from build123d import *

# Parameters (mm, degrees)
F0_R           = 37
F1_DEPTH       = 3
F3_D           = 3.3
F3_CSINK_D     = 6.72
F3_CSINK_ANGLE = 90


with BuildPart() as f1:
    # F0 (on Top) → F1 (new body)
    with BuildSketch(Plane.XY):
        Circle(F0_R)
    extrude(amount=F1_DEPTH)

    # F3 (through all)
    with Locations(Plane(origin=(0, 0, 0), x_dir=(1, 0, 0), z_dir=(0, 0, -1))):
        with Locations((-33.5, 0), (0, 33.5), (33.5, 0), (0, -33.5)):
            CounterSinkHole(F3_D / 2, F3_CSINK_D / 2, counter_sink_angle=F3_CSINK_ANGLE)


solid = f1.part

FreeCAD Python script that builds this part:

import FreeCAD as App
import Part
import Sketcher
from FreeCAD import Vector
Q = App.Units.Quantity

doc = App.newDocument("Part")
body = doc.addObject("PartDesign::Body", "Body")

# Sketch on XY plane
sketch1 = doc.addObject("Sketcher::SketchObject", "Sketch")
body.addObject(sketch1)
sketch1.AttachmentSupport = (doc.XY_Plane, [""])
sketch1.MapMode = "FlatFace"
sketch1.addGeometry(Part.Circle(Vector(0, 0, 0), Vector(0, 0, 1), 37), False)
sketch1.addConstraint(Sketcher.Constraint("Coincident", 0, 3, -1, 1))
sketch1.addConstraint(Sketcher.Constraint("Diameter", 0, Q("74 mm")))
pad1 = doc.addObject("PartDesign::Pad", "Pad")
body.addObject(pad1)
pad1.Profile = sketch1
pad1.Length = 3

# Sketch on XY plane
sketch2 = doc.addObject("Sketcher::SketchObject", "Sketch001")
body.addObject(sketch2)
sketch2.AttachmentSupport = (doc.XY_Plane, [""])
sketch2.MapMode = "FlatFace"
sketch2.addGeometry(Part.Circle(Vector(-33.5, 0, 0), Vector(0, 0, 1), 1.6), False)
sketch2.addGeometry(Part.Circle(Vector(0, -33.5, 0), Vector(0, 0, 1), 1.6), False)
sketch2.addGeometry(Part.Circle(Vector(33.5, 0, 0), Vector(0, 0, 1), 1.6), False)
sketch2.addGeometry(Part.Circle(Vector(0, 33.5, 0), Vector(0, 0, 1), 1.6), False)
sketch2.addConstraint(Sketcher.Constraint("Equal", 0, 1))
sketch2.addConstraint(Sketcher.Constraint("Equal", 1, 2))
sketch2.addConstraint(Sketcher.Constraint("Equal", 2, 3))
sketch2.addConstraint(Sketcher.Constraint("Symmetric", 0, 3, 2, 3, -1, 1))
sketch2.addConstraint(Sketcher.Constraint("Symmetric", 1, 3, 3, 3, -1, 1))
sketch2.addConstraint(Sketcher.Constraint("PointOnObject", 0, 3, -1))
sketch2.addConstraint(Sketcher.Constraint("PointOnObject", 1, 3, -2))
sketch2.addConstraint(Sketcher.Constraint("Diameter", 0, Q("3.3 mm")))
sketch2.addConstraint(Sketcher.Constraint("DistanceX", 0, 3, 2, 3, Q("67 mm")))
sketch2.addConstraint(Sketcher.Constraint("DistanceY", 1, 3, 3, 3, Q("67 mm")))
doc.recompute()
hole = doc.addObject("PartDesign::Hole", "Hole")
body.addObject(hole)
hole.Profile = sketch2
hole.ThreadType = "None"
hole.Diameter = 3.3
hole.DepthType = "ThroughAll"
hole.HoleCutType = "Countersink"
hole.HoleCutDiameter = 6.72
hole.HoleCutCountersinkAngle = 90
hole.Reversed = True

doc.recompute()
